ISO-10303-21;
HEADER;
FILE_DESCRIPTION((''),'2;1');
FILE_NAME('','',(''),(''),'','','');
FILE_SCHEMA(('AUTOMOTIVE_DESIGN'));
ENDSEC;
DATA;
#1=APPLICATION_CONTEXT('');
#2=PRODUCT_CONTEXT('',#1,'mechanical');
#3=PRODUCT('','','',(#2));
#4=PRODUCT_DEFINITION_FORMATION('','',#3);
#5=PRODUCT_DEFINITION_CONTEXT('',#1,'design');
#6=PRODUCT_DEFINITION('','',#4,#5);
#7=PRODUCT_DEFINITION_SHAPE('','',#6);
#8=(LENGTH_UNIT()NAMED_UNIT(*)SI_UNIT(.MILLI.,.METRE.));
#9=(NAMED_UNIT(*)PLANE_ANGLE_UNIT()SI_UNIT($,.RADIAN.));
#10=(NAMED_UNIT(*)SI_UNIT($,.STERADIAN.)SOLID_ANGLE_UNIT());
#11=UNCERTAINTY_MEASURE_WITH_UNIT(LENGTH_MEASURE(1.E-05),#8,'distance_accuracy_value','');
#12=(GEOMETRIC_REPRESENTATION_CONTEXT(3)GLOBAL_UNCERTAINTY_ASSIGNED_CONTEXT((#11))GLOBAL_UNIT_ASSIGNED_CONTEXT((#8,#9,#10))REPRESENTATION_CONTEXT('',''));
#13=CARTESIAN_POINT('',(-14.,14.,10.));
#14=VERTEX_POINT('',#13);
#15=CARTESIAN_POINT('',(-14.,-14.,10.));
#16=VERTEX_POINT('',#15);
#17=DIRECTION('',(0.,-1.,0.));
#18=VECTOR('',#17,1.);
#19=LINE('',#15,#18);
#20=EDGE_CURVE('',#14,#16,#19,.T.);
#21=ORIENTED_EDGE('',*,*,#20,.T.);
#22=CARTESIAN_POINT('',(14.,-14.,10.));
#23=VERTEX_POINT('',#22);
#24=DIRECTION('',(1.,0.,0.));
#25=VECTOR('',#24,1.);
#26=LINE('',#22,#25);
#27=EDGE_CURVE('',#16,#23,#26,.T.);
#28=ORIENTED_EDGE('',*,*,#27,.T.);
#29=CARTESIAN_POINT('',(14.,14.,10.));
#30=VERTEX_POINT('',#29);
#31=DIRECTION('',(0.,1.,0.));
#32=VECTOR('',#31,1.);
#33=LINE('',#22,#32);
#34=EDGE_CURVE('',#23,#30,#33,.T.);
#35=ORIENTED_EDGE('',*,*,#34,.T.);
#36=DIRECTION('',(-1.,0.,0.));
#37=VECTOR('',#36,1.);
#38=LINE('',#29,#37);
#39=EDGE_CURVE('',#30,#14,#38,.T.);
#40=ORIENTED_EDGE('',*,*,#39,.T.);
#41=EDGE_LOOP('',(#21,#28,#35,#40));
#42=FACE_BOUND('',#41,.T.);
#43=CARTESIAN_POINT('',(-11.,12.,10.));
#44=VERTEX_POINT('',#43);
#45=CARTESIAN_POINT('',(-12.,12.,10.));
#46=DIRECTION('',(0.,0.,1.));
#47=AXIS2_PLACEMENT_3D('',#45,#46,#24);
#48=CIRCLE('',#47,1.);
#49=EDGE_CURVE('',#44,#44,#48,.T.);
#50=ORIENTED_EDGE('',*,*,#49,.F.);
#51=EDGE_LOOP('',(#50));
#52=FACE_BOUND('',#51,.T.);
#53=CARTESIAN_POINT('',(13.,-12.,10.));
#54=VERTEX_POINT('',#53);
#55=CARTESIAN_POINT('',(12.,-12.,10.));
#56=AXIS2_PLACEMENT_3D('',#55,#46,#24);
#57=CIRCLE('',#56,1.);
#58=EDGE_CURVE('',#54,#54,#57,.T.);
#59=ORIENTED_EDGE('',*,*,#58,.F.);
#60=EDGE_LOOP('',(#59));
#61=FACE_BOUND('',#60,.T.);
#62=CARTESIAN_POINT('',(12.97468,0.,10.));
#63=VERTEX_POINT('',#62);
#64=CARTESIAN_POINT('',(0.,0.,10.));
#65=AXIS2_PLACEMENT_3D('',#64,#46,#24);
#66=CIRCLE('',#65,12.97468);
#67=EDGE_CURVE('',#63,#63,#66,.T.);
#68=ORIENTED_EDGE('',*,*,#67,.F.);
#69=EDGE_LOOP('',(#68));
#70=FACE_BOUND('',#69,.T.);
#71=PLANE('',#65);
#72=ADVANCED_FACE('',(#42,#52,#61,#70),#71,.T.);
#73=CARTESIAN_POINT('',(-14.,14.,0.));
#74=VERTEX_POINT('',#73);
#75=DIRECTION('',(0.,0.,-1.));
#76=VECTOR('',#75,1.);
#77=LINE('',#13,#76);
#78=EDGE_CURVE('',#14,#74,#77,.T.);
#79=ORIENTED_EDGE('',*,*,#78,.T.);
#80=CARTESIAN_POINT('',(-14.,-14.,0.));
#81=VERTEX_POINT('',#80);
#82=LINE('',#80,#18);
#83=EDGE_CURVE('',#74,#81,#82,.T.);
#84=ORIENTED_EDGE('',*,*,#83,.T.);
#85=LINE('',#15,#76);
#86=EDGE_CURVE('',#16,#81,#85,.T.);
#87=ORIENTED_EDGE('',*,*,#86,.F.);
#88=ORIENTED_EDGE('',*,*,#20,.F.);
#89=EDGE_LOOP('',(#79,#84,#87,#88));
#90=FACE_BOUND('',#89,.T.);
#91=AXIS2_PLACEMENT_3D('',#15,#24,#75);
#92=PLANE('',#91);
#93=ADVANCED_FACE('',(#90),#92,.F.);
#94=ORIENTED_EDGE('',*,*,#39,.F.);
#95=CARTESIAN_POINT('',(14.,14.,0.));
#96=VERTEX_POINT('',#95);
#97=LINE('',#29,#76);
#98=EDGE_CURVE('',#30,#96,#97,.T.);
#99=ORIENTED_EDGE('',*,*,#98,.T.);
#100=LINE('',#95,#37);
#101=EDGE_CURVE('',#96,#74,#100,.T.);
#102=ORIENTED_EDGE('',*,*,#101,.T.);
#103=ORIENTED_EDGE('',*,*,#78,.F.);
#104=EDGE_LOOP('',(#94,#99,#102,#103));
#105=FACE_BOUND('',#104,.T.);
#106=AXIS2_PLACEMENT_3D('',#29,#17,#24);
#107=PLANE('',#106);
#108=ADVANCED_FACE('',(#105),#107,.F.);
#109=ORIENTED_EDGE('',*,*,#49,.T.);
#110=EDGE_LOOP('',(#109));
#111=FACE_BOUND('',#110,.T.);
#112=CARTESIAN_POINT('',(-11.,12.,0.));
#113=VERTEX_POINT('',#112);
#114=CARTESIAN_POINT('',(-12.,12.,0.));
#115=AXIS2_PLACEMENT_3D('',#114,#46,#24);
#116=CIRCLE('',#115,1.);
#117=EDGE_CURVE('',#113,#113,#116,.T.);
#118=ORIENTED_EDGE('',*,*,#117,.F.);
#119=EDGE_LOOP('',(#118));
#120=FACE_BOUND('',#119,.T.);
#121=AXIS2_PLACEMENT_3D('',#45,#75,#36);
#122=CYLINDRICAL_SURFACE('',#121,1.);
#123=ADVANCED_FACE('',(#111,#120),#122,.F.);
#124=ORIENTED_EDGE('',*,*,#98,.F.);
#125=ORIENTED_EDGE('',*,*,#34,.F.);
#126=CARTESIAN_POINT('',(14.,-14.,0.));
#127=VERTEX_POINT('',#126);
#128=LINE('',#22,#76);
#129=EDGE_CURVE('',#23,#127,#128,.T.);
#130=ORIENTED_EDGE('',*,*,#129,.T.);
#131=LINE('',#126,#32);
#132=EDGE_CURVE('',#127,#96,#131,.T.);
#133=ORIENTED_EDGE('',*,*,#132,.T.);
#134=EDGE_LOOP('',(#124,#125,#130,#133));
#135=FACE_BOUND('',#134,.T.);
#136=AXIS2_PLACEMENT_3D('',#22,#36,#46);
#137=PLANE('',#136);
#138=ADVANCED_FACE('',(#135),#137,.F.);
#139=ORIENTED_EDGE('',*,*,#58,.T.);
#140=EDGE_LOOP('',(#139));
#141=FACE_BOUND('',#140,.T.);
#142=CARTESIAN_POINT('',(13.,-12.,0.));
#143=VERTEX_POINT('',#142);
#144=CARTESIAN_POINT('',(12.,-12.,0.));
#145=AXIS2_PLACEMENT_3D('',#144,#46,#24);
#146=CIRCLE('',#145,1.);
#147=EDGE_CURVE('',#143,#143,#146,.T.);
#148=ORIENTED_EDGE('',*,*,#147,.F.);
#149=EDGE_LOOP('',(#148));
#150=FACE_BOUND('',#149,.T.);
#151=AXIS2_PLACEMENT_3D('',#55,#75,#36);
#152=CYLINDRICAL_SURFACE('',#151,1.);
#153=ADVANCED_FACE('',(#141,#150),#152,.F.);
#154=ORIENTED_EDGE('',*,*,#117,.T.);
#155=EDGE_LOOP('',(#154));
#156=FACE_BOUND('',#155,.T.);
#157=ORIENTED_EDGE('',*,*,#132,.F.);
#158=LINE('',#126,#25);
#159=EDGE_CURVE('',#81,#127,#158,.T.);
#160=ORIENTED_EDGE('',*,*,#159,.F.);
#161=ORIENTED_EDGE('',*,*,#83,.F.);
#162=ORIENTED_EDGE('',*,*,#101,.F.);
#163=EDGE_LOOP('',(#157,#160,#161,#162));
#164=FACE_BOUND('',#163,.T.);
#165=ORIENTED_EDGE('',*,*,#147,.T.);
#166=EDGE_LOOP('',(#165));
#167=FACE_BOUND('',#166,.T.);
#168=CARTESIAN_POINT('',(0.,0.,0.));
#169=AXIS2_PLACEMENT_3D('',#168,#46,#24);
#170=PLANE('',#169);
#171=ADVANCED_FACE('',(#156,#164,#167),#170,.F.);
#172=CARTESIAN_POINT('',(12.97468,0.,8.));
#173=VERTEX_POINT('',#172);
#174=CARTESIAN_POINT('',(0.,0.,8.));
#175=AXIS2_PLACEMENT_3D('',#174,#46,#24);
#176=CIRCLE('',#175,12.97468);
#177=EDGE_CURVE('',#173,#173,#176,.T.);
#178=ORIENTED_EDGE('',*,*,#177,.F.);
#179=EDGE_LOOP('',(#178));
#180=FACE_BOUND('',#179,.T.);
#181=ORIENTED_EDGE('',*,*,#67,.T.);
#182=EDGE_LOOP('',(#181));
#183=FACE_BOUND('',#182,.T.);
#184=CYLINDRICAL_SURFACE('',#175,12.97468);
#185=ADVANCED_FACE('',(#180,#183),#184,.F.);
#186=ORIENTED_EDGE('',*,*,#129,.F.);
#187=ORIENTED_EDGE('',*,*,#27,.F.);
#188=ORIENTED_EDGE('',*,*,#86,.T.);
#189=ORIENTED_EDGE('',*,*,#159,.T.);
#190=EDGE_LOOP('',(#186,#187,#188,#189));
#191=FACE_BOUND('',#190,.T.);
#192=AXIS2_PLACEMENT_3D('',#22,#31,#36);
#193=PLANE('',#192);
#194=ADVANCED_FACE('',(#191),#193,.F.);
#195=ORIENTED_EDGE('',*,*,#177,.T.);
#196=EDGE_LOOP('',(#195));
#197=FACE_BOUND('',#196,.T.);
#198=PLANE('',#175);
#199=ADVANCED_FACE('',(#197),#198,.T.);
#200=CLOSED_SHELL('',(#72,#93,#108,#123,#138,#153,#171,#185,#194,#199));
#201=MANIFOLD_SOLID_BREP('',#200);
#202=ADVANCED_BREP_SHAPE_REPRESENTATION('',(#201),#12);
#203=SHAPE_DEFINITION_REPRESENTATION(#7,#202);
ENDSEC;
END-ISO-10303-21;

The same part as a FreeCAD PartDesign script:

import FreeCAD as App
import Part
import Sketcher
from FreeCAD import Vector
Q = App.Units.Quantity


def add_polygon(sketch, points):
    """Adds a closed chain of lines whose ends are joined by coincident constraints."""
    first, n = sketch.GeometryCount, len(points)
    for a, b in zip(points, points[1:] + points[:1]):
        sketch.addGeometry(Part.LineSegment(App.Vector(*a, 0), App.Vector(*b, 0)), False)
    for i in range(n):
        sketch.addConstraint(Sketcher.Constraint("Coincident", first + i, 2, first + (i + 1) % n, 1))

doc = App.newDocument("Part")
params = doc.addObject("Spreadsheet::Sheet", "Params")
for row, (alias, value) in enumerate([
    ("sketch1_diameter", "2 mm"),
    ("sketch1_width", "28 mm"),
    ("pad1_length", "10 mm"),
    ("pocket1_length", "2 mm"),
], start=1):
    params.set(f"A{row}", alias)
    params.set(f"B{row}", "=" + value)
    params.setAlias(f"B{row}", alias)

body = doc.addObject("PartDesign::Body", "Body")

sketch1 = doc.addObject("Sketcher::SketchObject", "Sketch")
body.addObject(sketch1)
sketch1.AttachmentSupport = (doc.XY_Plane, [""])
sketch1.MapMode = "FlatFace"
add_polygon(sketch1, [(-14, 14), (-14, -14), (14, -14), (14, 14)])
sketch1.addGeometry(Part.Circle(Vector(12, -12, 0), Vector(0, 0, 1), 1), False)
sketch1.addGeometry(Part.Circle(Vector(-12, 12, 0), Vector(0, 0, 1), 1), False)
sketch1.addConstraint(Sketcher.Constraint("Vertical", 0))
sketch1.addConstraint(Sketcher.Constraint("Horizontal", 1))
sketch1.addConstraint(Sketcher.Constraint("Vertical", 2))
sketch1.addConstraint(Sketcher.Constraint("Horizontal", 3))
sketch1.addConstraint(Sketcher.Constraint("Equal", 4, 5))
sketch1.addConstraint(Sketcher.Constraint("Symmetric", 4, 3, 5, 3, -1, 1))
sketch1.addConstraint(Sketcher.Constraint("Symmetric", 0, 2, 2, 2, -1, 1))
sketch1.addConstraint(Sketcher.Constraint("Equal", 3, 0))
sketch1.addConstraint(Sketcher.Constraint("Diameter", 4, Q("2 mm")))
sketch1.addConstraint(Sketcher.Constraint("DistanceX", 1, 1, 1, 2, Q("28 mm")))
sketch1.addConstraint(Sketcher.Constraint("DistanceX", -1, 1, 4, 3, Q("12 mm")))
sketch1.addConstraint(Sketcher.Constraint("DistanceY", 4, 3, -1, 1, Q("12 mm")))
sketch1.setExpression("Constraints[12]", "Params.sketch1_diameter")
sketch1.setExpression("Constraints[13]", "Params.sketch1_width")
pad1 = doc.addObject("PartDesign::Pad", "Pad")
body.addObject(pad1)
pad1.Profile = sketch1
pad1.setExpression("Length", "Params.pad1_length")

sketch2 = doc.addObject("Sketcher::SketchObject", "Sketch001")
body.addObject(sketch2)
sketch2.AttachmentSupport = (doc.XY_Plane, [""])
sketch2.MapMode = "FlatFace"
sketch2.AttachmentOffset = App.Placement(Vector(0, 0, 10), App.Rotation())
sketch2.addGeometry(Part.Circle(Vector(0, 0, 0), Vector(0, 0, 1), 13), False)
sketch2.addConstraint(Sketcher.Constraint("Coincident", 0, 3, -1, 1))
sketch2.addConstraint(Sketcher.Constraint("Diameter", 0, Q("25.949359 mm")))
pocket1 = doc.addObject("PartDesign::Pocket", "Pocket")
body.addObject(pocket1)
pocket1.Profile = sketch2
pocket1.setExpression("Length", "Params.pocket1_length")

doc.recompute()
